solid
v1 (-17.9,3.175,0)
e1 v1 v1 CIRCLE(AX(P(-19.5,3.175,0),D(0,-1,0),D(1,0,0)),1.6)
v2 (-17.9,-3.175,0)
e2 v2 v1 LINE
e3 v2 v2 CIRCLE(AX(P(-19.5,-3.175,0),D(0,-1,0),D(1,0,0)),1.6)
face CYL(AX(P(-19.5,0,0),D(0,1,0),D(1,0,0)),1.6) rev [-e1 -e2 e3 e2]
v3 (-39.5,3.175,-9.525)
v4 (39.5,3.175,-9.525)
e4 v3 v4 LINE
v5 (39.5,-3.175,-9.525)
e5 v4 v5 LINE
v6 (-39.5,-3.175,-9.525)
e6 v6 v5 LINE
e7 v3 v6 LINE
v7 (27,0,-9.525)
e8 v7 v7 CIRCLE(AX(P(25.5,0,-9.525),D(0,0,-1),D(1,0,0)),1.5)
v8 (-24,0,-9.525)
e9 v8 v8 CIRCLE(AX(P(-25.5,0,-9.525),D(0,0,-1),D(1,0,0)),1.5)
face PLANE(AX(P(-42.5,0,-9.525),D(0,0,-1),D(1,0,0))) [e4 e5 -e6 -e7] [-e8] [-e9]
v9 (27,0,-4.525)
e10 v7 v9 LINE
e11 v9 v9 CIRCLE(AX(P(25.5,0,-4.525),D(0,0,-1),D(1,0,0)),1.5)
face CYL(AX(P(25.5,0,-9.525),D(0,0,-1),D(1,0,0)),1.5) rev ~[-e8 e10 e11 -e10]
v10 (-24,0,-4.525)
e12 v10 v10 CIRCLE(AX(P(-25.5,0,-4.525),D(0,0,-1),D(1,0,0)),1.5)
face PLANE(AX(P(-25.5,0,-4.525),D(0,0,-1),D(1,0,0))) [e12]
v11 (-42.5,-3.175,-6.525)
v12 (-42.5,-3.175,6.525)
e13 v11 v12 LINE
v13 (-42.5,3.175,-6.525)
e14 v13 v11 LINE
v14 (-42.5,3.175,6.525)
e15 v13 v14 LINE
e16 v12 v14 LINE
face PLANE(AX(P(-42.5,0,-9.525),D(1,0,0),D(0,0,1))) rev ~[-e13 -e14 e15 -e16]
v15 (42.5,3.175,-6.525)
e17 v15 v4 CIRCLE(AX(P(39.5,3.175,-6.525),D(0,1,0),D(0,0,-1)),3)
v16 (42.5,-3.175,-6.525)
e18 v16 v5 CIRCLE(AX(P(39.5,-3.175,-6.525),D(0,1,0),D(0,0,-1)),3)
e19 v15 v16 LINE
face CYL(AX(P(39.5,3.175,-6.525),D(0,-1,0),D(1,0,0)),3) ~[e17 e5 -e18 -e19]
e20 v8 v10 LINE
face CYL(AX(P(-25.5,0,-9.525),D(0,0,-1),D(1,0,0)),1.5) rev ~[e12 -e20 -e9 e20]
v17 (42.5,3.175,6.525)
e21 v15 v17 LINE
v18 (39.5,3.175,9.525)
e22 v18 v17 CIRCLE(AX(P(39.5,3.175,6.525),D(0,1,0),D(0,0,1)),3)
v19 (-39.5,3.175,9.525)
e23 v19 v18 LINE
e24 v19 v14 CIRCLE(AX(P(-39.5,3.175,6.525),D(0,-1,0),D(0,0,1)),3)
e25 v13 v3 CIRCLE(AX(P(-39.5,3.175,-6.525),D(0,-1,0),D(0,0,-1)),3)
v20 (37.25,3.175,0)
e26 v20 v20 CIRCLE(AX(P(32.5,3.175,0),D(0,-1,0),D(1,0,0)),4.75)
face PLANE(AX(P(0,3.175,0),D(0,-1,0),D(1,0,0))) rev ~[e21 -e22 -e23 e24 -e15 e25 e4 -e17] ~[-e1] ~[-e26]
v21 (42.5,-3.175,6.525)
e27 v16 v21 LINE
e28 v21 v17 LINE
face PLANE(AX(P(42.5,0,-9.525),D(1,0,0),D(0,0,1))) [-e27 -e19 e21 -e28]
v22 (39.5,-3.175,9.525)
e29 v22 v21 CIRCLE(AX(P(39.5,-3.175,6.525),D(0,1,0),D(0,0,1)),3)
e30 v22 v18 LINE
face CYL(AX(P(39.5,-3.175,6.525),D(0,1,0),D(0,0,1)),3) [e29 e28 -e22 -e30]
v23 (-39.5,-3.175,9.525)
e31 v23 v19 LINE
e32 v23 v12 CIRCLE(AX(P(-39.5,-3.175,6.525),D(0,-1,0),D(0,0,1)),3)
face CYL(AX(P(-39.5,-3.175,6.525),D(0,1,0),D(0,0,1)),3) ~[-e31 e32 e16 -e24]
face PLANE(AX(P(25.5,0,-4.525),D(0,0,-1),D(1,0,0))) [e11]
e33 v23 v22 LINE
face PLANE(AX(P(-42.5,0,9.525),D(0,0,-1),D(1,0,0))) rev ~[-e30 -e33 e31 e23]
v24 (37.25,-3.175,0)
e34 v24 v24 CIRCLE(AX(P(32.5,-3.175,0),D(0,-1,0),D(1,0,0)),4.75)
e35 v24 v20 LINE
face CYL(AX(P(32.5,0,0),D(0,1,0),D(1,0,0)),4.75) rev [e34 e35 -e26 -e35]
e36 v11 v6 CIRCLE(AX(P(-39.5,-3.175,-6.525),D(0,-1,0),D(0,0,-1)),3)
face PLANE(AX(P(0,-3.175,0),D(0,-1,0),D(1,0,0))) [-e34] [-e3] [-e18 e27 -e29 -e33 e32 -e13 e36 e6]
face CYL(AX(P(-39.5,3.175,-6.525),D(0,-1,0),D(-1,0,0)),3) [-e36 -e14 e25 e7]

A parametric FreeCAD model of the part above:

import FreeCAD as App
import Part
import Sketcher

V = App.Vector
Q = App.Units.Quantity


def edges_at(feature, points):
    """Names of the edges that pass closest to the given points."""
    edges = feature.Shape.Edges
    near = lambda p: min(range(len(edges)), key=lambda i: edges[i].distToShape(Part.Vertex(*p))[0])
    return sorted({f"Edge{near(p) + 1}" for p in points})


def add_polygon(sketch, points):
    """Adds a closed chain of lines whose ends are joined by coincident constraints."""
    first, n = sketch.GeometryCount, len(points)
    for a, b in zip(points, points[1:] + points[:1]):
        sketch.addGeometry(Part.LineSegment(App.Vector(*a, 0), App.Vector(*b, 0)), False)
    for i in range(n):
        sketch.addConstraint(Sketcher.Constraint("Coincident", first + i, 2, first + (i + 1) % n, 1))

doc = App.newDocument("Part")
body = doc.addObject("PartDesign::Body", "Body")

# Sketch on XZ plane
sketch1 = body.newObject("Sketcher::SketchObject", "Sketch")
sketch1.AttachmentSupport = (doc.getObject("XZ_Plane"), [""])
sketch1.MapMode = "FlatFace"
add_polygon(sketch1, [(-42.5, 9.5), (-42.5, -9.5), (42.5, -9.5), (42.5, 9.5)])  # lines 0-3
sketch1.addGeometry(Part.Circle(V(-19.5, 0, 0), V(0, 0, 1), 1.6), False)  # 4
sketch1.addGeometry(Part.Circle(V(32.5, 0, 0), V(0, 0, 1), 4.8), False)  # 5
sketch1.addConstraint([
    Sketcher.Constraint("Vertical", 0),
    Sketcher.Constraint("Horizontal", 1),
    Sketcher.Constraint("Vertical", 2),
    Sketcher.Constraint("Horizontal", 3),
    Sketcher.Constraint("Symmetric", 0, 2, 2, 2, -1, 1),
    Sketcher.Constraint("PointOnObject", 4, 3, -1),
    Sketcher.Constraint("PointOnObject", 5, 3, -1),
    Sketcher.Constraint("Diameter", 4, Q("3.2 mm")),
    Sketcher.Constraint("Diameter", 5, Q("9.5 mm")),
    Sketcher.Constraint("DistanceX", 1, 1, 1, 2, Q("85 mm")),
    Sketcher.Constraint("DistanceX", 4, 3, 5, 3, Q("52 mm")),
    Sketcher.Constraint("DistanceX", 0, 2, 4, 3, Q("23 mm")),
    Sketcher.Constraint("DistanceY", 0, 2, 0, 1, Q("19.05 mm")),
])
pad1 = body.newObject("PartDesign::Pad", "Pad")
pad1.Profile = sketch1
pad1.Length = 6.35
pad1.Midplane = True

# Sketch on XY plane
sketch2 = body.newObject("Sketcher::SketchObject", "Sketch001")
sketch2.AttachmentSupport = (doc.getObject("XY_Plane"), [""])
sketch2.MapMode = "FlatFace"
sketch2.AttachmentOffset = App.Placement(V(0, 0, -9.525), App.Rotation())
sketch2.addGeometry([
    Part.Circle(V(-25.5, 0, 0), V(0, 0, 1), 1.5),
    Part.Circle(V(25.5, 0, 0), V(0, 0, 1), 1.5),
], False)
sketch2.addConstraint([
    Sketcher.Constraint("Equal", 0, 1),
    Sketcher.Constraint("Symmetric", 0, 3, 1, 3, -1, 1),
    Sketcher.Constraint("PointOnObject", 0, 3, -1),
    Sketcher.Constraint("Diameter", 0, Q("3 mm")),
    Sketcher.Constraint("DistanceX", 0, 3, 1, 3, Q("51 mm")),
])
pocket1 = body.newObject("PartDesign::Pocket", "Pocket")
pocket1.Profile = sketch2
pocket1.Length = 5
pocket1.Reversed = True
doc.recompute()

fillet = body.newObject("PartDesign::Fillet", "Fillet")
fillet.Base = (pocket1, edges_at(pocket1, [(42.5, 0, 9.525)]))
fillet.Radius = 3
doc.recompute()

fillet2 = body.newObject("PartDesign::Fillet", "Fillet001")
fillet2.Base = (fillet, edges_at(fillet, [(-42.5, 0, 9.525), (-42.5, 0, -9.525), (42.5, 0, -9.525)]))
fillet2.Radius = 3

doc.recompute()
